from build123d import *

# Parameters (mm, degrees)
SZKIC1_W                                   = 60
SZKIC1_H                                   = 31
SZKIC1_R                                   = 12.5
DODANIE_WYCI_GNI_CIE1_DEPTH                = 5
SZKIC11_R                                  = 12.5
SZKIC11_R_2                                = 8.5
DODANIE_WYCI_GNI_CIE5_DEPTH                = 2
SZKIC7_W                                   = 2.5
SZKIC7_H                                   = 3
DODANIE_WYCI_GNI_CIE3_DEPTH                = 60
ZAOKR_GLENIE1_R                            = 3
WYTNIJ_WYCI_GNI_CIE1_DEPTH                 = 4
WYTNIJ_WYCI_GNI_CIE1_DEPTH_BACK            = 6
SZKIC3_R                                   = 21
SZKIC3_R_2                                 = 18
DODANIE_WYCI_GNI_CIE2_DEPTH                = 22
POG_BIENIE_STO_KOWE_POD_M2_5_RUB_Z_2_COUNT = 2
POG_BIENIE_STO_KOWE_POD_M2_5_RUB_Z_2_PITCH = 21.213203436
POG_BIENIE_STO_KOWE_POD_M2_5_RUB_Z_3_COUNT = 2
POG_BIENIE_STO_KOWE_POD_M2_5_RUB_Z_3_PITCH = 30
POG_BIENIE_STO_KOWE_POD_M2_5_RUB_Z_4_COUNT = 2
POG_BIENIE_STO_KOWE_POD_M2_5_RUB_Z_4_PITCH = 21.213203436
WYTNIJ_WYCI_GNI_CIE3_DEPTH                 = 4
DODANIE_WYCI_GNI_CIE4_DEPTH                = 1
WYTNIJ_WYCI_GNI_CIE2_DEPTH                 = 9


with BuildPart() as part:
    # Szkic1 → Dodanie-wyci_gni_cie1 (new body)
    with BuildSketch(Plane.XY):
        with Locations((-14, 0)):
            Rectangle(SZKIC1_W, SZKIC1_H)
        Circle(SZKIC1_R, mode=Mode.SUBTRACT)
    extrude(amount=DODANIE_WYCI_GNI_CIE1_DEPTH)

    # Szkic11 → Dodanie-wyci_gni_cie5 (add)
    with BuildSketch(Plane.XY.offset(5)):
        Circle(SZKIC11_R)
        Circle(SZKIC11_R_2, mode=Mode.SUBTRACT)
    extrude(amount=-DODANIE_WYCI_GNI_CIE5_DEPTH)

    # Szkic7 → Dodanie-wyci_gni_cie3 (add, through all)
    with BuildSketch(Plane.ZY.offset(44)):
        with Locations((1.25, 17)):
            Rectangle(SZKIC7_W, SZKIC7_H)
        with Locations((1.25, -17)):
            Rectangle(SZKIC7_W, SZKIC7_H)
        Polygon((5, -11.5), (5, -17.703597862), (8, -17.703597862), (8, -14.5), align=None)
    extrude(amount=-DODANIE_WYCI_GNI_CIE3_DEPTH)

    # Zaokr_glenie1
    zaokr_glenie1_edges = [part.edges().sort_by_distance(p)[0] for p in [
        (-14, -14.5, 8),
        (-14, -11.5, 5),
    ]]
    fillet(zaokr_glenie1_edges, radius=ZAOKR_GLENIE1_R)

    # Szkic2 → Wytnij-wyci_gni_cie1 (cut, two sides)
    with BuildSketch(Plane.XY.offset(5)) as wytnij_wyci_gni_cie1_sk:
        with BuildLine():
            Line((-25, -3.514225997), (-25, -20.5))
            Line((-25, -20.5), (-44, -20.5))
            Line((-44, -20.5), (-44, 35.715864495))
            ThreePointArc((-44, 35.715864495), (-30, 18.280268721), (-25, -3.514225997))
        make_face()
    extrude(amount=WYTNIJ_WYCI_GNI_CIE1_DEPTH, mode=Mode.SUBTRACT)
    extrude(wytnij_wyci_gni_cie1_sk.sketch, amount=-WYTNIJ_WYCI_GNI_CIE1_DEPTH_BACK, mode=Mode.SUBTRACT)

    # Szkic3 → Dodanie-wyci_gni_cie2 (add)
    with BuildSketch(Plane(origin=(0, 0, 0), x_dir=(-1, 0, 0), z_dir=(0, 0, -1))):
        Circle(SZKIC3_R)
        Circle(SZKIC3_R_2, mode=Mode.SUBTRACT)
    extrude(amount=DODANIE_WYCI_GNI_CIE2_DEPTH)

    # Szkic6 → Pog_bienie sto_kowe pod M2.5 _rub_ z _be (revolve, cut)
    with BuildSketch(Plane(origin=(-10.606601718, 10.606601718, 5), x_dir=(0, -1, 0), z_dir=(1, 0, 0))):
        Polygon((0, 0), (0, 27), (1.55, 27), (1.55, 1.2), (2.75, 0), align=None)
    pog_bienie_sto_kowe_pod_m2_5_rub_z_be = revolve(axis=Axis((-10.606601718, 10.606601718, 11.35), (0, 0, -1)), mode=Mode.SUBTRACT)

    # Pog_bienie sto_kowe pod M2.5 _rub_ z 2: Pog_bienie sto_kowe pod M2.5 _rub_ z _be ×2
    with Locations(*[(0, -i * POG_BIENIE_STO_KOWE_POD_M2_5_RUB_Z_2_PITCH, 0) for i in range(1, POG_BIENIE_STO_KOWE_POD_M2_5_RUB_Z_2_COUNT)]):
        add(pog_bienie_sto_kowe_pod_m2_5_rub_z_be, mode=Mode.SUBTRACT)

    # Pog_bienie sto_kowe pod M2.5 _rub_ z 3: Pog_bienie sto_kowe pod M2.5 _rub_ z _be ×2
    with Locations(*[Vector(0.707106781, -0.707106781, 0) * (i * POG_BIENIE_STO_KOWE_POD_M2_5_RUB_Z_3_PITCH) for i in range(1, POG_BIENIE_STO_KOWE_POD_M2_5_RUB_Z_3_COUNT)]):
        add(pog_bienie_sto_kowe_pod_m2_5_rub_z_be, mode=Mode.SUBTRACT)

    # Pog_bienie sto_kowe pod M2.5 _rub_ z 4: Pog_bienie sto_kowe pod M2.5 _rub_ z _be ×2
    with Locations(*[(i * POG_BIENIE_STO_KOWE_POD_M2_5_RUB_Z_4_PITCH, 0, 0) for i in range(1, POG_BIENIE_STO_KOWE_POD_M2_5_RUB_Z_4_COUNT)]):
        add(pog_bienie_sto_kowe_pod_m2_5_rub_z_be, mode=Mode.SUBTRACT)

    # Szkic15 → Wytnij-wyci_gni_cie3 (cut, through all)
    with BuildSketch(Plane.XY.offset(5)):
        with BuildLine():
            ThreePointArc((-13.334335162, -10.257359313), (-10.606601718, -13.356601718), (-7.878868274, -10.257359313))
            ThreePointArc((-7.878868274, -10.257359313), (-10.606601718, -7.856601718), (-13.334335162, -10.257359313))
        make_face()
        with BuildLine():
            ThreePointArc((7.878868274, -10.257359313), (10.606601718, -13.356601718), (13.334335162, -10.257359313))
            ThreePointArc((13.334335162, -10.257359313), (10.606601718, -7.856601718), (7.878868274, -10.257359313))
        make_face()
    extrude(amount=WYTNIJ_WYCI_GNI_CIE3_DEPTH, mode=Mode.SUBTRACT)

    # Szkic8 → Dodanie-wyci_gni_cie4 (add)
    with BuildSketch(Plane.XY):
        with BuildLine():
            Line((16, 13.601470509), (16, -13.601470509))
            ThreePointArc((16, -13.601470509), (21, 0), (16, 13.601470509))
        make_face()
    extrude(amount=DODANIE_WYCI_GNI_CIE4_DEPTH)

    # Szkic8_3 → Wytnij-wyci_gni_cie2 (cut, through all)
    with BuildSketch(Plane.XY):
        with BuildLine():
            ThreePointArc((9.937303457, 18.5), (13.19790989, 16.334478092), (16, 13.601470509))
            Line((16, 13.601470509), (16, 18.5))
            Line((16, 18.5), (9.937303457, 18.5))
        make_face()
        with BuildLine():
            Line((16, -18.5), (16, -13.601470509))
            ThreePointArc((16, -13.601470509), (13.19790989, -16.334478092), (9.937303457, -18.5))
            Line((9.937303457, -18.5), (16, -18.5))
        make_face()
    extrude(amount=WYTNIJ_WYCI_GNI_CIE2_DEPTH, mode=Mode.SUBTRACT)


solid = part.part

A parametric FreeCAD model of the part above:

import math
import FreeCAD as App
import Part
import Sketcher

V = App.Vector
Q = App.Units.Quantity


def edges_at(feature, points):
    """Names of the edges that pass closest to the given points."""
    edges = feature.Shape.Edges
    near = lambda p: min(range(len(edges)), key=lambda i: edges[i].distToShape(Part.Vertex(*p))[0])
    return sorted({f"Edge{near(p) + 1}" for p in points})

doc = App.newDocument("Part")
body = doc.addObject("PartDesign::Body", "Body")

sketch1 = body.newObject("Sketcher::SketchObject", "Sketch")
sketch1.AttachmentSupport = (doc.getObject("XY_Plane"), [""])
sketch1.MapMode = "FlatFace"
sketch1.addGeometry([
    Part.LineSegment(V(-44, 16, 0), V(-44, -16, 0)),
    Part.LineSegment(V(-44, -16, 0), V(16, -16, 0)),
    Part.LineSegment(V(16, -16, 0), V(16, 16, 0)),
    Part.LineSegment(V(16, 16, 0), V(-44, 16, 0)),
    Part.Circle(V(0, 0, 0), V(0, 0, 1), 12),
], False)
sketch1.addConstraint([
    Sketcher.Constraint("Coincident", 0, 2, 1, 1),
    Sketcher.Constraint("Coincident", 1, 2, 2, 1),
    Sketcher.Constraint("Coincident", 2, 2, 3, 1),
    Sketcher.Constraint("Coincident", 3, 2, 0, 1),
    Sketcher.Constraint("Vertical", 0),
    Sketcher.Constraint("Horizontal", 1),
    Sketcher.Constraint("Vertical", 2),
    Sketcher.Constraint("Horizontal", 3),
    Sketcher.Constraint("Coincident", 4, 3, -1, 1),
    Sketcher.Constraint("Diameter", 4, Q("25 mm")),
    Sketcher.Constraint("DistanceX", 1, 1, 1, 2, Q("60 mm")),
    Sketcher.Constraint("DistanceY", 0, 2, 0, 1, Q("31 mm")),
    Sketcher.Constraint("DistanceX", 0, 2, -1, 1, Q("44 mm")),
    Sketcher.Constraint("DistanceY", 0, 2, -1, 1, Q("15.5 mm")),
])
pad1 = body.newObject("PartDesign::Pad", "Pad")
pad1.Profile = sketch1
pad1.Length = 5

sketch2 = body.newObject("Sketcher::SketchObject", "Sketch001")
sketch2.AttachmentSupport = (doc.getObject("XY_Plane"), [""])
sketch2.MapMode = "FlatFace"
sketch2.AttachmentOffset = App.Placement(V(0, 0, 5), App.Rotation())
sketch2.addGeometry([
    Part.Circle(V(0, 0, 0), V(0, 0, 1), 12),
    Part.Circle(V(0, 0, 0), V(0, 0, 1), 8),
], False)
sketch2.addConstraint([
    Sketcher.Constraint("Coincident", 0, 3, -1, 1),
    Sketcher.Constraint("Coincident", 1, 3, -1, 1),
    Sketcher.Constraint("Diameter", 0, Q("25 mm")),
    Sketcher.Constraint("Diameter", 1, Q("17 mm")),
])
pad2 = body.newObject("PartDesign::Pad", "Pad001")
pad2.Profile = sketch2
pad2.Length = 2
pad2.Reversed = True

sketch3 = body.newObject("Sketcher::SketchObject", "Sketch002")
sketch3.AttachmentSupport = (doc.getObject("YZ_Plane"), [""])
sketch3.MapMode = "FlatFace"
sketch3.AttachmentOffset = App.Placement(V(0, 0, -44), App.Rotation())
sketch3.addGeometry([
    Part.LineSegment(V(18.5, 0, 0), V(15.5, 0, 0)),
    Part.LineSegment(V(15.5, 0, 0), V(15.5, 2.5, 0)),
    Part.LineSegment(V(15.5, 2.5, 0), V(18.5, 2.5, 0)),
    Part.LineSegment(V(18.5, 2.5, 0), V(18.5, 0, 0)),
    Part.LineSegment(V(-15.5, 0, 0), V(-18.5, 0, 0)),
    Part.LineSegment(V(-18.5, 0, 0), V(-18.5, 2.5, 0)),
    Part.LineSegment(V(-18.5, 2.5, 0), V(-15.5, 2.5, 0)),
    Part.LineSegment(V(-15.5, 2.5, 0), V(-15.5, 0, 0)),
    Part.LineSegment(V(-11.5, 5, 0), V(-17.7, 5, 0)),
    Part.LineSegment(V(-17.7, 5, 0), V(-17.7, 8, 0)),
    Part.LineSegment(V(-17.7, 8, 0), V(-14.5, 8, 0)),
    Part.LineSegment(V(-14.5, 8, 0), V(-11.5, 5, 0)),
], False)
sketch3.addConstraint([
    Sketcher.Constraint("Coincident", 0, 2, 1, 1),
    Sketcher.Constraint("Coincident", 1, 2, 2, 1),
    Sketcher.Constraint("Coincident", 2, 2, 3, 1),
    Sketcher.Constraint("Coincident", 3, 2, 0, 1),
    Sketcher.Constraint("Coincident", 4, 2, 5, 1),
    Sketcher.Constraint("Coincident", 5, 2, 6, 1),
    Sketcher.Constraint("Coincident", 6, 2, 7, 1),
    Sketcher.Constraint("Coincident", 7, 2, 4, 1),
    Sketcher.Constraint("Coincident", 8, 2, 9, 1),
    Sketcher.Constraint("Coincident", 9, 2, 10, 1),
    Sketcher.Constraint("Coincident", 10, 2, 11, 1),
    Sketcher.Constraint("Coincident", 11, 2, 8, 1),
    Sketcher.Constraint("Horizontal", 0),
    Sketcher.Constraint("Vertical", 1),
    Sketcher.Constraint("Horizontal", 2),
    Sketcher.Constraint("Vertical", 3),
    Sketcher.Constraint("Horizontal", 4),
    Sketcher.Constraint("Vertical", 5),
    Sketcher.Constraint("Horizontal", 6),
    Sketcher.Constraint("Vertical", 7),
    Sketcher.Constraint("Horizontal", 8),
    Sketcher.Constraint("Vertical", 9),
    Sketcher.Constraint("Horizontal", 10),
    Sketcher.Constraint("Symmetric", 3, 2, 4, 2, -1, 1),
    Sketcher.Constraint("Symmetric", 1, 2, 6, 2, -2),
    Sketcher.Constraint("PointOnObject", 0, 2, -1),
    Sketcher.Constraint("Equal", 6, 9),
    Sketcher.Constraint("DistanceX", 0, 2, 0, 1, Q("3 mm")),
    Sketcher.Constraint("Angle", 11, Q("-45 deg")),
    Sketcher.Constraint("DistanceY", 1, 1, 1, 2, Q("2.5 mm")),
    Sketcher.Constraint("DistanceY", -1, 1, 8, 2, Q("5 mm")),
    Sketcher.Constraint("DistanceX", 4, 2, 0, 2, Q("34 mm")),
    Sketcher.Constraint("DistanceX", 6, 2, 10, 2, Q("1 mm")),
    Sketcher.Constraint("DistanceX", 8, 2, 8, 1, Q("6.203598 mm")),
])
pad3 = body.newObject("PartDesign::Pad", "Pad002")
pad3.Profile = sketch3
pad3.Type = "UpToLast"
doc.recompute()

fillet = body.newObject("PartDesign::Fillet", "Fillet")
fillet.Base = (pad3, edges_at(pad3, [(-14, -14.5, 8), (-14, -11.5, 5)]))
fillet.Radius = 3

sketch4 = body.newObject("Sketcher::SketchObject", "Sketch003")
sketch4.AttachmentSupport = (doc.getObject("XY_Plane"), [""])
sketch4.MapMode = "FlatFace"
sketch4.AttachmentOffset = App.Placement(V(0, 0, 5), App.Rotation())
sketch4.addGeometry([
    Part.LineSegment(V(-25, -20, 0), V(-25, -4, 0)),
    Part.ArcOfCircle(Part.Circle(V(-75, -4, 0), V(0, 0, 1), 50), math.radians(0), math.radians(52)),
    Part.LineSegment(V(-44, 36, 0), V(-44, -20, 0)),
    Part.LineSegment(V(-44, -20, 0), V(-25, -20, 0)),
], False)
sketch4.addConstraint([
    Sketcher.Constraint("Tangent", 0, 2, 1, 1),
    Sketcher.Constraint("Coincident", 1, 2, 2, 1),
    Sketcher.Constraint("Coincident", 2, 2, 3, 1),
    Sketcher.Constraint("Coincident", 3, 2, 0, 1),
    Sketcher.Constraint("Vertical", 0),
    Sketcher.Constraint("Vertical", 2),
    Sketcher.Constraint("Horizontal", 3),
    Sketcher.Constraint("Radius", 1, Q("50 mm")),
    Sketcher.Constraint("DistanceX", 3, 1, 3, 2, Q("19 mm")),
    Sketcher.Constraint("DistanceX", 1, 3, -1, 1, Q("75 mm")),
    Sketcher.Constraint("DistanceY", 2, 2, -1, 1, Q("20.5 mm")),
    Sketcher.Constraint("DistanceY", 0, 1, 0, 2, Q("16.985774 mm")),
])
pocket1 = body.newObject("PartDesign::Pocket", "Pocket")
pocket1.Profile = sketch4
pocket1.Type = "ThroughAll"
pocket1.Midplane = True

sketch5 = body.newObject("Sketcher::SketchObject", "Sketch004")
sketch5.AttachmentSupport = (doc.getObject("XY_Plane"), [""])
sketch5.MapMode = "FlatFace"
sketch5.addGeometry([
    Part.Circle(V(0, 0, 0), V(0, 0, 1), 21),
    Part.Circle(V(0, 0, 0), V(0, 0, 1), 18),
], False)
sketch5.addConstraint([
    Sketcher.Constraint("Coincident", 0, 3, -1, 1),
    Sketcher.Constraint("Coincident", 1, 3, -1, 1),
    Sketcher.Constraint("Diameter", 0, Q("42 mm")),
    Sketcher.Constraint("Diameter", 1, Q("36 mm")),
])
pad4 = body.newObject("PartDesign::Pad", "Pad003")
pad4.Profile = sketch5
pad4.Length = 22
pad4.Reversed = True

sketch6 = body.newObject("Sketcher::SketchObject", "Sketch005")
sketch6.AttachmentSupport = (doc.getObject("YZ_Plane"), [""])
sketch6.MapMode = "FlatFace"
sketch6.AttachmentOffset = App.Placement(V(0, 0, -10.606602), App.Rotation())
sketch6.addGeometry([
    Part.LineSegment(V(10.6, -22, 0), V(10.6, 5, 0)),
    Part.LineSegment(V(10.6, 5, 0), V(7.9, 5, 0)),
    Part.LineSegment(V(7.9, 5, 0), V(9.1, 3.8, 0)),
    Part.LineSegment(V(9.1, 3.8, 0), V(9.1, -22, 0)),
    Part.LineSegment(V(9.1, -22, 0), V(10.6, -22, 0)),
], False)
sketch6.addGeometry(Part.LineSegment(V(10.6, 5, 0), V(10.6, -22, 0)), True)
sketch6.addConstraint([
    Sketcher.Constraint("Coincident", 0, 2, 1, 1),
    Sketcher.Constraint("Coincident", 1, 2, 2, 1),
    Sketcher.Constraint("Coincident", 2, 2, 3, 1),
    Sketcher.Constraint("Coincident", 3, 2, 4, 1),
    Sketcher.Constraint("Coincident", 4, 2, 0, 1),
    Sketcher.Constraint("Vertical", 0),
    Sketcher.Constraint("Horizontal", 1),
    Sketcher.Constraint("Vertical", 3),
    Sketcher.Constraint("Horizontal", 4),
    Sketcher.Constraint("Vertical", 5),
    Sketcher.Constraint("Coincident", 5, 1, 0, 2),
    Sketcher.Constraint("Horizontal", 3, 2, 5, 2),
    Sketcher.Constraint("DistanceY", 0, 1, 0, 2, Q("27 mm")),
    Sketcher.Constraint("Angle", 2, Q("-45 deg")),
    Sketcher.Constraint("DistanceY", 3, 2, 3, 1, Q("25.8 mm")),
    Sketcher.Constraint("DistanceY", -1, 1, 0, 2, Q("5 mm")),
    Sketcher.Constraint("DistanceX", 1, 2, 1, 1, Q("2.75 mm")),
    Sketcher.Constraint("DistanceX", -1, 1, 0, 2, Q("10.606602 mm")),
])
groove = body.newObject("PartDesign::Groove", "Groove")
groove.Profile = sketch6
groove.ReferenceAxis = (sketch6, ["Axis0"])
groove.Angle = 360
doc.recompute()

linearpattern = body.newObject("PartDesign::LinearPattern", "LinearPattern")
linearpattern.Originals = [groove]
linearpattern.Direction = (doc.getObject("Y_Axis"), [""])
linearpattern.Mode = "offset"
linearpattern.Offset = 21.213203
linearpattern.Occurrences = 2
linearpattern.Reversed = True
body.Tip = linearpattern
doc.recompute()

datumline = body.newObject("PartDesign::Line", "DatumLine")
datumline.Placement = App.Placement(V(0, 0, 0), App.Rotation(V(0, 0, 1), V(0.707106781, -0.707106781, 0)))
linearpattern2 = body.newObject("PartDesign::LinearPattern", "LinearPattern001")
linearpattern2.Originals = [groove]
linearpattern2.Direction = (datumline, [""])
linearpattern2.Mode = "offset"
linearpattern2.Offset = 30
linearpattern2.Occurrences = 2
body.Tip = linearpattern2
doc.recompute()

linearpattern3 = body.newObject("PartDesign::LinearPattern", "LinearPattern002")
linearpattern3.Originals = [groove]
linearpattern3.Direction = (doc.getObject("X_Axis"), [""])
linearpattern3.Mode = "offset"
linearpattern3.Offset = 21.213203
linearpattern3.Occurrences = 2
body.Tip = linearpattern3

sketch7 = body.newObject("Sketcher::SketchObject", "Sketch006")
sketch7.AttachmentSupport = (doc.getObject("XY_Plane"), [""])
sketch7.MapMode = "FlatFace"
sketch7.AttachmentOffset = App.Placement(V(0, 0, 5), App.Rotation())
sketch7.addGeometry([
    Part.ArcOfCircle(Part.Circle(V(-10.6, -10.6, 0), V(0, 0, 1), 2.8), math.radians(173), math.radians(367)),
    Part.ArcOfCircle(Part.Circle(V(-10.6, -10.6, 0), V(0, 0, 1), 2.8), math.radians(7), math.radians(173)),
    Part.ArcOfCircle(Part.Circle(V(10.6, -10.6, 0), V(0, 0, 1), 2.8), math.radians(173), math.radians(367)),
    Part.ArcOfCircle(Part.Circle(V(10.6, -10.6, 0), V(0, 0, 1), 2.8), math.radians(7), math.radians(173)),
], False)
sketch7.addConstraint([
    Sketcher.Constraint("Tangent", 0, 1, 1, 2),
    Sketcher.Constraint("Coincident", 1, 1, 0, 2),
    Sketcher.Constraint("Tangent", 2, 1, 3, 2),
    Sketcher.Constraint("Coincident", 3, 1, 2, 2),
    Sketcher.Constraint("Equal", 1, 2),
    Sketcher.Constraint("Symmetric", 0, 3, 2, 3, -2),
    Sketcher.Constraint("Horizontal", 0, 1, 1, 1),
    Sketcher.Constraint("Horizontal", 1, 1, 2, 1),
    Sketcher.Constraint("Horizontal", 2, 1, 3, 1),
    Sketcher.Constraint("Radius", 0, Q("2.75 mm")),
    Sketcher.Constraint("DistanceX", 0, 3, -1, 1, Q("10.606602 mm")),
    Sketcher.Constraint("DistanceY", 0, 3, -1, 1, Q("10.606602 mm")),
    Sketcher.Constraint("DistanceY", 0, 1, -1, 1, Q("10.257359 mm")),
])
pocket2 = body.newObject("PartDesign::Pocket", "Pocket001")
pocket2.Profile = sketch7
pocket2.Type = "ThroughAll"
pocket2.Reversed = True

sketch8 = body.newObject("Sketcher::SketchObject", "Sketch007")
sketch8.AttachmentSupport = (doc.getObject("XY_Plane"), [""])
sketch8.MapMode = "FlatFace"
sketch8.addGeometry([
    Part.LineSegment(V(16, 14, 0), V(16, -14, 0)),
    Part.ArcOfCircle(Part.Circle(V(0, 0, 0), V(0, 0, 1), 21), math.radians(-40), math.radians(40)),
], False)
sketch8.addConstraint([
    Sketcher.Constraint("Coincident", 0, 1, 1, 2),
    Sketcher.Constraint("Coincident", 1, 1, 0, 2),
    Sketcher.Constraint("Vertical", 0),
    Sketcher.Constraint("Coincident", 1, 3, -1, 1),
    Sketcher.Constraint("Radius", 1, Q("21 mm")),
    Sketcher.Constraint("DistanceX", -1, 1, 0, 1, Q("16 mm")),
])
pad5 = body.newObject("PartDesign::Pad", "Pad004")
pad5.Profile = sketch8
pad5.Length = 1

sketch9 = body.newObject("Sketcher::SketchObject", "Sketch008")
sketch9.AttachmentSupport = (doc.getObject("XY_Plane"), [""])
sketch9.MapMode = "FlatFace"
sketch9.addGeometry([
    Part.ArcOfCircle(Part.Circle(V(0, 0, 0), V(0, 0, 1), 21), math.radians(40), math.radians(62)),
    Part.LineSegment(V(16, 13.6, 0), V(16, 18.5, 0)),
    Part.LineSegment(V(16, 18.5, 0), V(9.9, 18.5, 0)),
    Part.LineSegment(V(16, -18.5, 0), V(16, -13.6, 0)),
    Part.ArcOfCircle(Part.Circle(V(0, 0, 0), V(0, 0, 1), 21), math.radians(-62), math.radians(-40)),
    Part.LineSegment(V(9.9, -18.5, 0), V(16, -18.5, 0)),
], False)
sketch9.addConstraint([
    Sketcher.Constraint("Coincident", 0, 1, 1, 1),
    Sketcher.Constraint("Coincident", 1, 2, 2, 1),
    Sketcher.Constraint("Coincident", 2, 2, 0, 2),
    Sketcher.Constraint("Coincident", 3, 2, 4, 2),
    Sketcher.Constraint("Coincident", 4, 1, 5, 1),
    Sketcher.Constraint("Coincident", 5, 2, 3, 1),
    Sketcher.Constraint("Vertical", 1),
    Sketcher.Constraint("Horizontal", 2),
    Sketcher.Constraint("Vertical", 3),
    Sketcher.Constraint("Horizontal", 5),
    Sketcher.Constraint("Coincident", 0, 3, -1, 1),
    Sketcher.Constraint("Coincident", 4, 3, -1, 1),
    Sketcher.Constraint("Equal", 0, 4),
    Sketcher.Constraint("Symmetric", 1, 2, 5, 2, -1),
    Sketcher.Constraint("Radius", 0, Q("21 mm")),
    Sketcher.Constraint("DistanceX", -1, 1, 0, 1, Q("16 mm")),
    Sketcher.Constraint("DistanceY", 4, 1, 2, 2, Q("37 mm")),
])
pocket3 = body.newObject("PartDesign::Pocket", "Pocket002")
pocket3.Profile = sketch9
pocket3.Type = "ThroughAll"
pocket3.Reversed = True

doc.recompute()
